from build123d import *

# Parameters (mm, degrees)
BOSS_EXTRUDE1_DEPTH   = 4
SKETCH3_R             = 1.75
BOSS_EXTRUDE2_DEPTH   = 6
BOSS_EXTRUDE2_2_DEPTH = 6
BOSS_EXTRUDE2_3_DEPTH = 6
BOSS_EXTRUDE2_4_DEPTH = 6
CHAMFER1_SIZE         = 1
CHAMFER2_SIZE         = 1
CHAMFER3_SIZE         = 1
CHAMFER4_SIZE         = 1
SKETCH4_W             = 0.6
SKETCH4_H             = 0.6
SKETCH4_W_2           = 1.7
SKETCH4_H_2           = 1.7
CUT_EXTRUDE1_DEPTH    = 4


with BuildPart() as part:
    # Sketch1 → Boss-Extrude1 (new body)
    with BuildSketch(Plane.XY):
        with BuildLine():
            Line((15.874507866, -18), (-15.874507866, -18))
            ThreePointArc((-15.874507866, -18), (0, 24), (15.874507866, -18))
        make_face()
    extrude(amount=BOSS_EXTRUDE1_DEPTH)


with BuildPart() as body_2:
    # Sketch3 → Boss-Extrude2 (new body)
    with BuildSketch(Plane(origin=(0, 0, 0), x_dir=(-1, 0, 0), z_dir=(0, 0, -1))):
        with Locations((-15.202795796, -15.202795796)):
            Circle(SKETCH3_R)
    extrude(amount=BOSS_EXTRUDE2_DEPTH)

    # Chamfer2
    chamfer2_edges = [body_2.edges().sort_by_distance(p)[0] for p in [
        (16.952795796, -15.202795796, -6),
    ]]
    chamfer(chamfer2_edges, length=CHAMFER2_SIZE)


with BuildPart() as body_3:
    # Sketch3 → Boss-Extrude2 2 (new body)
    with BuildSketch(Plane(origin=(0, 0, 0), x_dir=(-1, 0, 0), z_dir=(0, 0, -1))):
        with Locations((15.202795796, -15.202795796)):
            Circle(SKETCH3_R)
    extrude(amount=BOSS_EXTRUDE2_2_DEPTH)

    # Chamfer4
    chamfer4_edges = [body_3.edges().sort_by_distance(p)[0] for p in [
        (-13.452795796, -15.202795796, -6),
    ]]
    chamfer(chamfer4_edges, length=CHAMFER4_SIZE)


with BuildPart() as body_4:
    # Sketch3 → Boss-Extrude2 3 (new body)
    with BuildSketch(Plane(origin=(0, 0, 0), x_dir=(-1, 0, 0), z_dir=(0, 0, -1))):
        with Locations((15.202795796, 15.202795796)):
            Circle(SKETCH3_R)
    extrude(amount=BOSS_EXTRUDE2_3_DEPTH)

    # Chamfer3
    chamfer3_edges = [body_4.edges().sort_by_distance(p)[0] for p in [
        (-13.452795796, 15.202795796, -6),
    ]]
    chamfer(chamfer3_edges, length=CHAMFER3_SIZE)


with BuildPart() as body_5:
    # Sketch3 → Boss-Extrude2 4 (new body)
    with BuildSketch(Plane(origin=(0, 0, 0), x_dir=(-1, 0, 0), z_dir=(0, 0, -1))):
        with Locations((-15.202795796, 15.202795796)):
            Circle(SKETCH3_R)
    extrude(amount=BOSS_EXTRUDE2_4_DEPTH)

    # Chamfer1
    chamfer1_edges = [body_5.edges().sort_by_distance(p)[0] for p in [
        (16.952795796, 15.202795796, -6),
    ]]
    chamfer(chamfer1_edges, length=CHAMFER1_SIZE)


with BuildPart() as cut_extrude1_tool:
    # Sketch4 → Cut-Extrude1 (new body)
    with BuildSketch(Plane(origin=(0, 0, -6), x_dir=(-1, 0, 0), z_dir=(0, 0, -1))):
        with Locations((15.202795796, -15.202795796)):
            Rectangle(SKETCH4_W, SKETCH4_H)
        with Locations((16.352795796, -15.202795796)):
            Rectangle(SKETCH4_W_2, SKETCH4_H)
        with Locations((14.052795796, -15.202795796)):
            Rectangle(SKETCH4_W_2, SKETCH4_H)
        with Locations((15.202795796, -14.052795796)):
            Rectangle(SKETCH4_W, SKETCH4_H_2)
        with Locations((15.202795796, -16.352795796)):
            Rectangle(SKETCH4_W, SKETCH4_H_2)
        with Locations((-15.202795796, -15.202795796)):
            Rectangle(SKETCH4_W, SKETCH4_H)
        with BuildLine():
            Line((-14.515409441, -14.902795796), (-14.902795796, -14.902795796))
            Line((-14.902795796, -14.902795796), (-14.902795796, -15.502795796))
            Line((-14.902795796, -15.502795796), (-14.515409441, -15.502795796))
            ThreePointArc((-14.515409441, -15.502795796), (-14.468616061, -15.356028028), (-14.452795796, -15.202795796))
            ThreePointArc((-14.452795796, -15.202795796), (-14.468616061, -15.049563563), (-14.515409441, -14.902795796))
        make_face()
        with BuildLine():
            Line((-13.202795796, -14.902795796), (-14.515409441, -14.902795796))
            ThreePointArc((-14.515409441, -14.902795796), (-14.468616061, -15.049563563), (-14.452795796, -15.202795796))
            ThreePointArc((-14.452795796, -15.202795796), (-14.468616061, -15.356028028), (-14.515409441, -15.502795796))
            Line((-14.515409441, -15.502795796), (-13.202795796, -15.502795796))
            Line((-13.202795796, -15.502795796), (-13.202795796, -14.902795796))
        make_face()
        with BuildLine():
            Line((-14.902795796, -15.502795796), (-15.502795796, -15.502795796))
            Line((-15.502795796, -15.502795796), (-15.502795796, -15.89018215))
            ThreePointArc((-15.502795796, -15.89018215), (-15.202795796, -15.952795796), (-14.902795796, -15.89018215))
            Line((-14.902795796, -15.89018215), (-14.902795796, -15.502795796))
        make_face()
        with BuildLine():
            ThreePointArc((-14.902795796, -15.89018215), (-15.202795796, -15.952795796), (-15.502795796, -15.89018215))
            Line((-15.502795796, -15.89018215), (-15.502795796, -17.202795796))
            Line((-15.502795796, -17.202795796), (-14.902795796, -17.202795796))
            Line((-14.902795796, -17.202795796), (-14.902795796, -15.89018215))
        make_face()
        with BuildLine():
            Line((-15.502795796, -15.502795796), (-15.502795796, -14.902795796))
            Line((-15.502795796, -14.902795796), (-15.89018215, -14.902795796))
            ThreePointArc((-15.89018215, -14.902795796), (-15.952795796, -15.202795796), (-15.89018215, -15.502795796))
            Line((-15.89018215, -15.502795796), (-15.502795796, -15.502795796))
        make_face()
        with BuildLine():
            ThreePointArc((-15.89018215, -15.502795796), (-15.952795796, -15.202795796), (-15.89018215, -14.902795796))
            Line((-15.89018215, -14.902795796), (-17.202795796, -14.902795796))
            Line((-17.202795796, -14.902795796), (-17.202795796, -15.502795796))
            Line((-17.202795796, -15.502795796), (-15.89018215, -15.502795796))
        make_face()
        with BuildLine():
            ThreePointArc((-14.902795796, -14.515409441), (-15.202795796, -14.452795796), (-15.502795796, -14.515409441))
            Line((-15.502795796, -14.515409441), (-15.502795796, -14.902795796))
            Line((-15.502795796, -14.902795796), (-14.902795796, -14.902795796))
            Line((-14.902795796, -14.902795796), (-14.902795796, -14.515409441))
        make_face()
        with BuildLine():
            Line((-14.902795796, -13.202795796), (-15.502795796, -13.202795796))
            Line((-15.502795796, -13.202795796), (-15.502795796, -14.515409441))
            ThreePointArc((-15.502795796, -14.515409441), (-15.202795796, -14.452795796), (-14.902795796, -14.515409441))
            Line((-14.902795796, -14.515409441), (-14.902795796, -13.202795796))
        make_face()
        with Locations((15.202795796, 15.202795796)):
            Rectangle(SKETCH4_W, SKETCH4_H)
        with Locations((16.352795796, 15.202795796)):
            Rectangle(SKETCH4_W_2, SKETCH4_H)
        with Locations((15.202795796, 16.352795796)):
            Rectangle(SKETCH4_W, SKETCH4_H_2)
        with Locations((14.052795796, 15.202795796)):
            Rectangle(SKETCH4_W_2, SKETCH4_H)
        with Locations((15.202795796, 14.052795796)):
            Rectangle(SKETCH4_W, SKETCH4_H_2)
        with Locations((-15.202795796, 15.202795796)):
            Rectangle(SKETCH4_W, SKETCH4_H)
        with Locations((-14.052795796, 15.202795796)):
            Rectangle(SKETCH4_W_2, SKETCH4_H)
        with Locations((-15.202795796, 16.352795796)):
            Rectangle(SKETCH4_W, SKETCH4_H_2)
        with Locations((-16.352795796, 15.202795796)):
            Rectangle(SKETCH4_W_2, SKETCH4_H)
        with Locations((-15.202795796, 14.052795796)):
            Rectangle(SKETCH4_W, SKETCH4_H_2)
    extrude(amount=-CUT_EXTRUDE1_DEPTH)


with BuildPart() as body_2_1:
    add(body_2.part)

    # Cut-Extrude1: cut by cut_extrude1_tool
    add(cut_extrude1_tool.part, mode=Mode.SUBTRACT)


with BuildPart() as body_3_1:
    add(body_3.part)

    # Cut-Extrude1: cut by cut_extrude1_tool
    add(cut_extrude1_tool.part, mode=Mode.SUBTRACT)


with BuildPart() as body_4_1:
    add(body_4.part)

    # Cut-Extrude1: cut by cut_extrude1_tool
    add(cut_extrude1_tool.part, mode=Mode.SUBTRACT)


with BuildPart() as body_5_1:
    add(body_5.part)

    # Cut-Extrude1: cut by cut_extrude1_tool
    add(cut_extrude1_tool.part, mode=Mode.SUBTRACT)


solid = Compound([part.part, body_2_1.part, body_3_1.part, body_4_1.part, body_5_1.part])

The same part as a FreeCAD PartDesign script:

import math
import FreeCAD as App
import Part
import Sketcher
from FreeCAD import Vector
Q = App.Units.Quantity


def edges_at(feature, points):
    """Names of the edges that pass closest to the given points."""
    edges = feature.Shape.Edges
    near = lambda p: min(range(len(edges)), key=lambda i: edges[i].distToShape(Part.Vertex(*p))[0])
    return sorted({f"Edge{near(p) + 1}" for p in points})


def add_polygon(sketch, points):
    """Adds a closed chain of lines whose ends are joined by coincident constraints."""
    first, n = sketch.GeometryCount, len(points)
    for a, b in zip(points, points[1:] + points[:1]):
        sketch.addGeometry(Part.LineSegment(App.Vector(*a, 0), App.Vector(*b, 0)), False)
    for i in range(n):
        sketch.addConstraint(Sketcher.Constraint("Coincident", first + i, 2, first + (i + 1) % n, 1))

doc = App.newDocument("Part")
body = doc.addObject("PartDesign::Body", "Body")

# Sketch on XY plane
sketch1 = body.newObject("Sketcher::SketchObject", "Sketch")
sketch1.AttachmentSupport = (doc.getObject("XY_Plane"), [""])
sketch1.MapMode = "FlatFace"
sketch1.addGeometry([
    Part.LineSegment(Vector(-16, -18, 0), Vector(16, -18, 0)),
    Part.ArcOfCircle(Part.Circle(Vector(0, 0, 0), Vector(0, 0, 1), 24), math.radians(-49), math.radians(229)),
], False)
sketch1.addConstraint([
    Sketcher.Constraint("Coincident", 0, 1, 1, 2),
    Sketcher.Constraint("Coincident", 1, 1, 0, 2),
    Sketcher.Constraint("Horizontal", 0),
    Sketcher.Constraint("Coincident", 1, 3, -1, 1),
    Sketcher.Constraint("Radius", 1, Q("24 mm")),
    Sketcher.Constraint("DistanceY", 0, 1, -1, 1, Q("18 mm")),
])
pad1 = body.newObject("PartDesign::Pad", "Pad")
pad1.Profile = sketch1
pad1.Length = 4
body2 = doc.addObject("PartDesign::Body", "Body001")

# Sketch on XY plane
sketch2 = body2.newObject("Sketcher::SketchObject", "Sketch001")
sketch2.AttachmentSupport = (doc.getObject("XY_Plane001"), [""])
sketch2.MapMode = "FlatFace"
sketch2.addGeometry(Part.Circle(Vector(15.2, -15.2, 0), Vector(0, 0, 1), 1.8), False)
sketch2.addConstraint([
    Sketcher.Constraint("Diameter", 0, Q("3.5 mm")),
    Sketcher.Constraint("DistanceX", -1, 1, 0, 3, Q("15.202796 mm")),
    Sketcher.Constraint("DistanceY", 0, 3, -1, 1, Q("15.202796 mm")),
])
pad2 = body2.newObject("PartDesign::Pad", "Pad001")
pad2.Profile = sketch2
pad2.Length = 6
pad2.Reversed = True
doc.recompute()

chamfer = body2.newObject("PartDesign::Chamfer", "Chamfer")
chamfer.Base = (pad2, edges_at(pad2, [(16.953, -15.203, -6)]))
chamfer.Size = 1
body3 = doc.addObject("PartDesign::Body", "Body002")

# Sketch on XY plane
sketch3 = body3.newObject("Sketcher::SketchObject", "Sketch002")
sketch3.AttachmentSupport = (doc.getObject("XY_Plane002"), [""])
sketch3.MapMode = "FlatFace"
sketch3.addGeometry(Part.Circle(Vector(-15.2, -15.2, 0), Vector(0, 0, 1), 1.8), False)
sketch3.addConstraint([
    Sketcher.Constraint("Diameter", 0, Q("3.5 mm")),
    Sketcher.Constraint("DistanceX", 0, 3, -1, 1, Q("15.202796 mm")),
    Sketcher.Constraint("DistanceY", 0, 3, -1, 1, Q("15.202796 mm")),
])
pad3 = body3.newObject("PartDesign::Pad", "Pad002")
pad3.Profile = sketch3
pad3.Length = 6
pad3.Reversed = True
doc.recompute()

chamfer2 = body3.newObject("PartDesign::Chamfer", "Chamfer001")
chamfer2.Base = (pad3, edges_at(pad3, [(-13.453, -15.203, -6)]))
chamfer2.Size = 1
body4 = doc.addObject("PartDesign::Body", "Body003")

# Sketch on XY plane
sketch4 = body4.newObject("Sketcher::SketchObject", "Sketch003")
sketch4.AttachmentSupport = (doc.getObject("XY_Plane003"), [""])
sketch4.MapMode = "FlatFace"
sketch4.addGeometry(Part.Circle(Vector(-15.2, 15.2, 0), Vector(0, 0, 1), 1.8), False)
sketch4.addConstraint([
    Sketcher.Constraint("Diameter", 0, Q("3.5 mm")),
    Sketcher.Constraint("DistanceX", 0, 3, -1, 1, Q("15.202796 mm")),
    Sketcher.Constraint("DistanceY", -1, 1, 0, 3, Q("15.202796 mm")),
])
pad4 = body4.newObject("PartDesign::Pad", "Pad003")
pad4.Profile = sketch4
pad4.Length = 6
pad4.Reversed = True
doc.recompute()

chamfer3 = body4.newObject("PartDesign::Chamfer", "Chamfer002")
chamfer3.Base = (pad4, edges_at(pad4, [(-13.453, 15.203, -6)]))
chamfer3.Size = 1
body5 = doc.addObject("PartDesign::Body", "Body004")

# Sketch on XY plane
sketch5 = body5.newObject("Sketcher::SketchObject", "Sketch004")
sketch5.AttachmentSupport = (doc.getObject("XY_Plane004"), [""])
sketch5.MapMode = "FlatFace"
sketch5.addGeometry(Part.Circle(Vector(15.2, 15.2, 0), Vector(0, 0, 1), 1.8), False)
sketch5.addConstraint([
    Sketcher.Constraint("Diameter", 0, Q("3.5 mm")),
    Sketcher.Constraint("DistanceX", -1, 1, 0, 3, Q("15.202796 mm")),
    Sketcher.Constraint("DistanceY", -1, 1, 0, 3, Q("15.202796 mm")),
])
pad5 = body5.newObject("PartDesign::Pad", "Pad004")
pad5.Profile = sketch5
pad5.Length = 6
pad5.Reversed = True
doc.recompute()

chamfer4 = body5.newObject("PartDesign::Chamfer", "Chamfer003")
chamfer4.Base = (pad5, edges_at(pad5, [(16.953, 15.203, -6)]))
chamfer4.Size = 1
body6 = doc.addObject("PartDesign::Body", "Body005")
body6.AllowCompound = True

# Sketch on XY plane
sketch6 = body6.newObject("Sketcher::SketchObject", "Sketch005")
sketch6.AttachmentSupport = (doc.getObject("XY_Plane005"), [""])
sketch6.MapMode = "FlatFace"
sketch6.AttachmentOffset = App.Placement(Vector(0, 0, -6), App.Rotation())
add_polygon(sketch6, [(-17.2, -15.5), (-17.2, -14.9), (-15.5, -14.9), (-15.5, -13.2), (-14.9, -13.2), (-14.9, -14.9), (-13.2, -14.9), (-13.2, -15.5), (-14.9, -15.5), (-14.9, -17.2), (-15.5, -17.2), (-15.5, -15.5)])  # lines 0-11
add_polygon(sketch6, [(15.5, -15.5), (15.5, -17.2), (14.9, -17.2), (14.9, -15.5), (13.2, -15.5), (13.2, -14.9), (14.9, -14.9), (14.9, -13.2), (15.5, -13.2), (15.5, -14.9), (17.2, -14.9), (17.2, -15.5)])  # lines 12-23
add_polygon(sketch6, [(-17.2, 14.9), (-17.2, 15.5), (-15.5, 15.5), (-15.5, 17.2), (-14.9, 17.2), (-14.9, 15.5), (-13.2, 15.5), (-13.2, 14.9), (-14.9, 14.9), (-14.9, 13.2), (-15.5, 13.2), (-15.5, 14.9)])  # lines 24-35
add_polygon(sketch6, [(13.2, 14.9), (13.2, 15.5), (14.9, 15.5), (14.9, 17.2), (15.5, 17.2), (15.5, 15.5), (17.2, 15.5), (17.2, 14.9), (15.5, 14.9), (15.5, 13.2), (14.9, 13.2), (14.9, 14.9)])  # lines 36-47
sketch6.addConstraint([
    Sketcher.Constraint("Vertical", 0),
    Sketcher.Constraint("Horizontal", 1),
    Sketcher.Constraint("Vertical", 2),
    Sketcher.Constraint("Horizontal", 3),
    Sketcher.Constraint("Vertical", 4),
    Sketcher.Constraint("Horizontal", 5),
    Sketcher.Constraint("Vertical", 6),
    Sketcher.Constraint("Horizontal", 7),
    Sketcher.Constraint("Vertical", 8),
    Sketcher.Constraint("Horizontal", 9),
    Sketcher.Constraint("Vertical", 10),
    Sketcher.Constraint("Horizontal", 11),
    Sketcher.Constraint("Vertical", 12),
    Sketcher.Constraint("Horizontal", 13),
    Sketcher.Constraint("Vertical", 14),
    Sketcher.Constraint("Horizontal", 15),
    Sketcher.Constraint("Vertical", 16),
    Sketcher.Constraint("Horizontal", 17),
    Sketcher.Constraint("Vertical", 18),
    Sketcher.Constraint("Horizontal", 19),
    Sketcher.Constraint("Vertical", 20),
    Sketcher.Constraint("Horizontal", 21),
    Sketcher.Constraint("Vertical", 22),
    Sketcher.Constraint("Horizontal", 23),
    Sketcher.Constraint("Vertical", 24),
    Sketcher.Constraint("Horizontal", 25),
    Sketcher.Constraint("Vertical", 26),
    Sketcher.Constraint("Horizontal", 27),
    Sketcher.Constraint("Vertical", 28),
    Sketcher.Constraint("Horizontal", 29),
    Sketcher.Constraint("Vertical", 30),
    Sketcher.Constraint("Horizontal", 31),
    Sketcher.Constraint("Vertical", 32),
    Sketcher.Constraint("Horizontal", 33),
    Sketcher.Constraint("Vertical", 34),
    Sketcher.Constraint("Horizontal", 35),
    Sketcher.Constraint("Vertical", 36),
    Sketcher.Constraint("Horizontal", 37),
    Sketcher.Constraint("Vertical", 38),
    Sketcher.Constraint("Horizontal", 39),
    Sketcher.Constraint("Vertical", 40),
    Sketcher.Constraint("Horizontal", 41),
    Sketcher.Constraint("Vertical", 42),
    Sketcher.Constraint("Horizontal", 43),
    Sketcher.Constraint("Vertical", 44),
    Sketcher.Constraint("Horizontal", 45),
    Sketcher.Constraint("Vertical", 46),
    Sketcher.Constraint("Horizontal", 47),
    Sketcher.Constraint("Symmetric", 22, 2, 24, 2, -1, 1),
    Sketcher.Constraint("Symmetric", 12, 2, 26, 2, -1, 1),
    Sketcher.Constraint("Symmetric", 14, 2, 28, 2, -1, 1),
    Sketcher.Constraint("Symmetric", 16, 2, 30, 2, -1, 1),
    Sketcher.Constraint("Symmetric", 18, 2, 32, 2, -1, 1),
    Sketcher.Constraint("Symmetric", 20, 2, 34, 2, -1, 1),
    Sketcher.Constraint("Symmetric", 6, 2, 36, 2, -1, 1),
    Sketcher.Constraint("Symmetric", 8, 2, 38, 2, -1, 1),
    Sketcher.Constraint("Symmetric", 10, 2, 40, 2, -1, 1),
    Sketcher.Constraint("Symmetric", 0, 2, 42, 2, -1, 1),
    Sketcher.Constraint("Symmetric", 2, 2, 44, 2, -1, 1),
    Sketcher.Constraint("Symmetric", 4, 2, 46, 2, -1, 1),
    Sketcher.Constraint("Symmetric", 9, 2, 12, 2, -2),
    Sketcher.Constraint("Symmetric", 7, 2, 14, 2, -2),
    Sketcher.Constraint("Symmetric", 5, 2, 16, 2, -2),
    Sketcher.Constraint("Symmetric", 3, 2, 18, 2, -2),
    Sketcher.Constraint("Symmetric", 1, 2, 20, 2, -2),
    Sketcher.Constraint("Symmetric", 11, 2, 22, 2, -2),
    Sketcher.Constraint("Horizontal", 1, 2, 4, 2),
    Sketcher.Constraint("Horizontal", 7, 2, 10, 2),
    Sketcher.Constraint("Vertical", 4, 2, 7, 2),
    Sketcher.Constraint("Vertical", 2, 2, 9, 2),
    Sketcher.Constraint("Equal", 1, 5),
    Sketcher.Constraint("Equal", 45, 0),
    Sketcher.Constraint("Equal", 47, 2),
    Sketcher.Constraint("Equal", 4, 8),
    Sketcher.Constraint("DistanceX", 1, 1, 1, 2, Q("1.7 mm")),
    Sketcher.Constraint("DistanceX", 3, 1, 3, 2, Q("0.6 mm")),
    Sketcher.Constraint("DistanceX", 6, 2, 12, 2, Q("28.705592 mm")),
    Sketcher.Constraint("DistanceY", 2, 2, 24, 2, Q("28.705592 mm")),
])
pad6 = body6.newObject("PartDesign::Pad", "Pad005")
pad6.Profile = sketch6
pad6.Length = 4
doc.recompute()

body7 = doc.addObject("PartDesign::Body", "Body006")
body7.BaseFeature = body6
boolean = body2.newObject("PartDesign::Boolean", "Boolean")
boolean.Type = "Cut"
boolean.addObjects([body7])
doc.recompute()

body8 = doc.addObject("PartDesign::Body", "Body007")
body8.BaseFeature = body6
boolean2 = body3.newObject("PartDesign::Boolean", "Boolean001")
boolean2.Type = "Cut"
boolean2.addObjects([body8])
doc.recompute()

body9 = doc.addObject("PartDesign::Body", "Body008")
body9.BaseFeature = body6
boolean3 = body4.newObject("PartDesign::Boolean", "Boolean002")
boolean3.Type = "Cut"
boolean3.addObjects([body9])
doc.recompute()

boolean4 = body5.newObject("PartDesign::Boolean", "Boolean003")
boolean4.Type = "Cut"
boolean4.addObjects([body6])

doc.recompute()
